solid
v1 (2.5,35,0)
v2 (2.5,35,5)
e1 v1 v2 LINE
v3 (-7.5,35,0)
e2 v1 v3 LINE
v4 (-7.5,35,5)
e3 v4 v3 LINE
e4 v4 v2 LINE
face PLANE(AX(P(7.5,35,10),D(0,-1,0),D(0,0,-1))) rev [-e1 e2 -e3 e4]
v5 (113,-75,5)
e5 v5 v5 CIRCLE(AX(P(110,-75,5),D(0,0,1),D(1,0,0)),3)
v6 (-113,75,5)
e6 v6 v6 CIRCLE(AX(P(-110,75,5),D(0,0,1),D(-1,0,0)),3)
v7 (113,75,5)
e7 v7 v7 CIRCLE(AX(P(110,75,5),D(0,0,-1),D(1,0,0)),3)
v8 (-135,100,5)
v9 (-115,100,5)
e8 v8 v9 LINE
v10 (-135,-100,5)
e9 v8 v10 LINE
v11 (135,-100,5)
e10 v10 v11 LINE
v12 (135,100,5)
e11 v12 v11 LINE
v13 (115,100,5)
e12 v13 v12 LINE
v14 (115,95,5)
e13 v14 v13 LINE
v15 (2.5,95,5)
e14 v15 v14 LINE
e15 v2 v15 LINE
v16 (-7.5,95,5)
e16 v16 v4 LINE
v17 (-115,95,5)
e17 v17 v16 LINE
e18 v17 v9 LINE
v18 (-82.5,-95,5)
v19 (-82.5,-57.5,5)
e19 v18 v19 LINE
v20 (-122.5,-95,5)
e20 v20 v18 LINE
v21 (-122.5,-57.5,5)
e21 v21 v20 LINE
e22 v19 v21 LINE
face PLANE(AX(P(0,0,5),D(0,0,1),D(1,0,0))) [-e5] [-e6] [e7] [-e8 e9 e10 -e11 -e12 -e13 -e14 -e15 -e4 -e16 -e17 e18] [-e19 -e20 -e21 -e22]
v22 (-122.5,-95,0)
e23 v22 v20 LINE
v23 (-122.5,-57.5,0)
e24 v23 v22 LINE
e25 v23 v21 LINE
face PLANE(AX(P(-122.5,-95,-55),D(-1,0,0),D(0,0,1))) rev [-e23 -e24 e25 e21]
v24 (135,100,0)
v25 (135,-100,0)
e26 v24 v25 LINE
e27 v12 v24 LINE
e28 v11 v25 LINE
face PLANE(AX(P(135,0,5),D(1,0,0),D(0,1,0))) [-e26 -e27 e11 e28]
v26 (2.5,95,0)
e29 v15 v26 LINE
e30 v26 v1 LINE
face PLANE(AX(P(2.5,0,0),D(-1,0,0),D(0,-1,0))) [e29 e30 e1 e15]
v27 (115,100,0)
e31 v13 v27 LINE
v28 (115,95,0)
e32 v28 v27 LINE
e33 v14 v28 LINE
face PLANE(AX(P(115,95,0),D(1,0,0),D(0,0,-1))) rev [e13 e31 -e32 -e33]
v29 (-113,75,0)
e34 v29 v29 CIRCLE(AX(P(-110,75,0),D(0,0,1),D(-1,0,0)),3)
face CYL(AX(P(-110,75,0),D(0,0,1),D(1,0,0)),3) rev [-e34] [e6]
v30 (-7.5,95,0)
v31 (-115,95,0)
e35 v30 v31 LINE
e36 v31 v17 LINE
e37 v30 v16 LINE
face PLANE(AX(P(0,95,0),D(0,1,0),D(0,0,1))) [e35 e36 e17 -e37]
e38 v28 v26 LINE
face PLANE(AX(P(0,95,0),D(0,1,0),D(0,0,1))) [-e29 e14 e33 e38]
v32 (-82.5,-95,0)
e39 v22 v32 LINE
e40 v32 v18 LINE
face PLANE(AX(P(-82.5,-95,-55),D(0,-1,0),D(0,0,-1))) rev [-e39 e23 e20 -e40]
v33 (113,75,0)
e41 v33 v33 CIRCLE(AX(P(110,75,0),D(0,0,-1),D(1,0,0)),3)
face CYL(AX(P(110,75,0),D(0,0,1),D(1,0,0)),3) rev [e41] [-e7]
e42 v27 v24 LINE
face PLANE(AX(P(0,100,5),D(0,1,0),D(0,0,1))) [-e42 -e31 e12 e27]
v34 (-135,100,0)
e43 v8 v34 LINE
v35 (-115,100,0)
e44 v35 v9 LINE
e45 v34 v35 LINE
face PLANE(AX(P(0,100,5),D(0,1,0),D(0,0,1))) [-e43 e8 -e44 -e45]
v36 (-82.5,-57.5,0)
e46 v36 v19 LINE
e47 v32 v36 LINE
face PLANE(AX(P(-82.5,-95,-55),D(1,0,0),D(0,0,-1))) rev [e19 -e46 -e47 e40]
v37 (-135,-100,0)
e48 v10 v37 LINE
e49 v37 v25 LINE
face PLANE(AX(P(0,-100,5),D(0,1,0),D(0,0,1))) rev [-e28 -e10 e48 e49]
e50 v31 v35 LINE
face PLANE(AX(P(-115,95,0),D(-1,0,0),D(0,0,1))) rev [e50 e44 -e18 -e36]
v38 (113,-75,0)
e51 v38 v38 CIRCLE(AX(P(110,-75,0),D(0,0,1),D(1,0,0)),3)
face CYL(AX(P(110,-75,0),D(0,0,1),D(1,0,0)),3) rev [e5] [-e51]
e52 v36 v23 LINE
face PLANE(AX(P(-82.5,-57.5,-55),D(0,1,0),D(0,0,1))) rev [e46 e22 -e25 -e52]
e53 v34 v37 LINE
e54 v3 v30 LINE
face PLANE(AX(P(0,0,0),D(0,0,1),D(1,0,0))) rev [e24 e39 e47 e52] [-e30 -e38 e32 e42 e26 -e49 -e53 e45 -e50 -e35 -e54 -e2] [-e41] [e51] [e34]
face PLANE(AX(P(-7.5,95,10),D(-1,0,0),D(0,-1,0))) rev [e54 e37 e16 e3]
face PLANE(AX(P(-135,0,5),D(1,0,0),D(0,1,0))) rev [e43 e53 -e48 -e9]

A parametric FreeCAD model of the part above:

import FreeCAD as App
import Part
import Sketcher
Q = App.Units.Quantity

doc = App.newDocument("Part")
body = doc.addObject("PartDesign::Body", "Body")

sketch1 = doc.addObject("Sketcher::SketchObject", "Sketch")
body.addObject(sketch1)
sketch1.AttachmentSupport = (doc.XY_Plane, [""])
sketch1.MapMode = "FlatFace"
sketch1.addGeometry([
    Part.LineSegment(App.Vector(135, 100, 0), App.Vector(-135, 100, 0)),
    Part.LineSegment(App.Vector(-135, 100, 0), App.Vector(-135, 22, 0)),
    Part.LineSegment(App.Vector(-135, 22, 0), App.Vector(-90, 22, 0)),
    Part.LineSegment(App.Vector(-90, 22, 0), App.Vector(-90, -22, 0)),
    Part.LineSegment(App.Vector(-90, -22, 0), App.Vector(-135, -22, 0)),
    Part.LineSegment(App.Vector(-135, -22, 0), App.Vector(-135, -100, 0)),
    Part.LineSegment(App.Vector(-135, -100, 0), App.Vector(135, -100, 0)),
    Part.LineSegment(App.Vector(135, -100, 0), App.Vector(135, 100, 0)),
], False)
sketch1.addConstraint([
    Sketcher.Constraint("Coincident", 0, 2, 1, 1),
    Sketcher.Constraint("Coincident", 1, 2, 2, 1),
    Sketcher.Constraint("Coincident", 2, 2, 3, 1),
    Sketcher.Constraint("Coincident", 3, 2, 4, 1),
    Sketcher.Constraint("Coincident", 4, 2, 5, 1),
    Sketcher.Constraint("Coincident", 5, 2, 6, 1),
    Sketcher.Constraint("Coincident", 6, 2, 7, 1),
    Sketcher.Constraint("Coincident", 7, 2, 0, 1),
    Sketcher.Constraint("Horizontal", 0),
    Sketcher.Constraint("Vertical", 1),
    Sketcher.Constraint("Horizontal", 2),
    Sketcher.Constraint("Vertical", 3),
    Sketcher.Constraint("Horizontal", 4),
    Sketcher.Constraint("Vertical", 5),
    Sketcher.Constraint("Horizontal", 6),
    Sketcher.Constraint("Vertical", 7),
    Sketcher.Constraint("Symmetric", 0, 2, 6, 2, -1, 1),
    Sketcher.Constraint("Symmetric", 1, 2, 4, 2, -1),
    Sketcher.Constraint("Equal", 4, 3),
    Sketcher.Constraint("DistanceX", 0, 2, 0, 1, Q("270 mm")),
    Sketcher.Constraint("DistanceX", 2, 1, 2, 2, Q("45 mm")),
    Sketcher.Constraint("DistanceY", 7, 1, 7, 2, Q("200 mm")),
])
pad1 = doc.addObject("PartDesign::Pad", "Pad")
body.addObject(pad1)
pad1.Profile = sketch1
pad1.Length = 5

sketch2 = doc.addObject("Sketcher::SketchObject", "Sketch001")
body.addObject(sketch2)
sketch2.AttachmentSupport = (doc.XY_Plane, [""])
sketch2.MapMode = "FlatFace"
sketch2.AttachmentOffset = App.Placement(App.Vector(0, 0, 5), App.Rotation())
sketch2.addGeometry(Part.Circle(App.Vector(110, -75, 0), App.Vector(0, 0, 1), 3), False)
sketch2.addConstraint([
    Sketcher.Constraint("Diameter", 0, Q("6 mm")),
    Sketcher.Constraint("DistanceX", -1, 1, 0, 3, Q("110 mm")),
    Sketcher.Constraint("DistanceY", 0, 3, -1, 1, Q("75 mm")),
])
pocket1 = doc.addObject("PartDesign::Pocket", "Pocket")
body.addObject(pocket1)
pocket1.Profile = sketch2
pocket1.Type = "ThroughAll"
doc.recompute()

mirrored = doc.addObject("PartDesign::Mirrored", "Mirrored")
body.addObject(mirrored)
mirrored.Originals = [pocket1]
mirrored.MirrorPlane = (doc.YZ_Plane, [""])
body.Tip = mirrored
doc.recompute()

mirrored2 = doc.addObject("PartDesign::Mirrored", "Mirrored001")
body.addObject(mirrored2)
mirrored2.Originals = [pocket1]
mirrored2.MirrorPlane = (doc.XZ_Plane, [""])
body.Tip = mirrored2

sketch3 = doc.addObject("Sketcher::SketchObject", "Sketch002")
body.addObject(sketch3)
sketch3.AttachmentSupport = (doc.XY_Plane, [""])
sketch3.MapMode = "FlatFace"
sketch3.AttachmentOffset = App.Placement(App.Vector(0, 0, 5), App.Rotation())
sketch3.addGeometry(Part.Circle(App.Vector(-110, 75, 0), App.Vector(0, 0, 1), 3), False)
sketch3.addConstraint([
    Sketcher.Constraint("Diameter", 0, Q("6 mm")),
    Sketcher.Constraint("DistanceX", 0, 3, -1, 1, Q("110 mm")),
    Sketcher.Constraint("DistanceY", -1, 1, 0, 3, Q("75 mm")),
])
pocket2 = doc.addObject("PartDesign::Pocket", "Pocket001")
body.addObject(pocket2)
pocket2.Profile = sketch3
pocket2.Type = "ThroughAll"

sketch4 = doc.addObject("Sketcher::SketchObject", "Sketch003")
body.addObject(sketch4)
sketch4.AttachmentSupport = (doc.XY_Plane, [""])
sketch4.MapMode = "FlatFace"
sketch4.AttachmentOffset = App.Placement(App.Vector(0, 0, 5), App.Rotation())
sketch4.addGeometry([
    Part.LineSegment(App.Vector(-122, -58, 0), App.Vector(-122, -95, 0)),
    Part.LineSegment(App.Vector(-122, -95, 0), App.Vector(-82, -95, 0)),
    Part.LineSegment(App.Vector(-82, -95, 0), App.Vector(-82, -58, 0)),
    Part.LineSegment(App.Vector(-82, -58, 0), App.Vector(-122, -58, 0)),
], False)
sketch4.addConstraint([
    Sketcher.Constraint("Coincident", 0, 2, 1, 1),
    Sketcher.Constraint("Coincident", 1, 2, 2, 1),
    Sketcher.Constraint("Coincident", 2, 2, 3, 1),
    Sketcher.Constraint("Coincident", 3, 2, 0, 1),
    Sketcher.Constraint("Vertical", 0),
    Sketcher.Constraint("Horizontal", 1),
    Sketcher.Constraint("Vertical", 2),
    Sketcher.Constraint("Horizontal", 3),
    Sketcher.Constraint("DistanceX", 1, 1, 1, 2, Q("40 mm")),
    Sketcher.Constraint("DistanceY", 0, 2, 0, 1, Q("37.5 mm")),
    Sketcher.Constraint("DistanceY", 0, 2, -1, 1, Q("95 mm")),
    Sketcher.Constraint("DistanceX", 0, 2, -1, 1, Q("122.5 mm")),
])
pocket3 = doc.addObject("PartDesign::Pocket", "Pocket002")
body.addObject(pocket3)
pocket3.Profile = sketch4
pocket3.Length = 60

sketch5 = doc.addObject("Sketcher::SketchObject", "Sketch004")
body.addObject(sketch5)
sketch5.AttachmentSupport = (doc.XZ_Plane, [""])
sketch5.MapMode = "FlatFace"
sketch5.AttachmentOffset = App.Placement(App.Vector(0, 0, 22.5), App.Rotation())
sketch5.addGeometry([
    Part.LineSegment(App.Vector(-135, 0, 0), App.Vector(-135, 5, 0)),
    Part.LineSegment(App.Vector(-135, 5, 0), App.Vector(-90, 5, 0)),
    Part.LineSegment(App.Vector(-90, 5, 0), App.Vector(-90, 0, 0)),
    Part.LineSegment(App.Vector(-90, 0, 0), App.Vector(-135, 0, 0)),
], False)
sketch5.addConstraint([
    Sketcher.Constraint("Coincident", 0, 2, 1, 1),
    Sketcher.Constraint("Coincident", 1, 2, 2, 1),
    Sketcher.Constraint("Coincident", 2, 2, 3, 1),
    Sketcher.Constraint("Coincident", 3, 2, 0, 1),
    Sketcher.Constraint("Vertical", 0),
    Sketcher.Constraint("Horizontal", 1),
    Sketcher.Constraint("Vertical", 2),
    Sketcher.Constraint("Horizontal", 3),
    Sketcher.Constraint("PointOnObject", 2, 2, -1),
    Sketcher.Constraint("DistanceX", 1, 1, 1, 2, Q("45 mm")),
    Sketcher.Constraint("DistanceY", 0, 1, 0, 2, Q("5 mm")),
    Sketcher.Constraint("DistanceX", 0, 2, -1, 1, Q("135 mm")),
])
pad2 = doc.addObject("PartDesign::Pad", "Pad001")
body.addObject(pad2)
pad2.Profile = sketch5
pad2.Length = 60
pad2.Reversed = True

sketch6 = doc.addObject("Sketcher::SketchObject", "Sketch005")
body.addObject(sketch6)
sketch6.AttachmentSupport = (doc.XZ_Plane, [""])
sketch6.MapMode = "FlatFace"
sketch6.AttachmentOffset = App.Placement(App.Vector(0, 0, -100), App.Rotation())
sketch6.addGeometry([
    Part.LineSegment(App.Vector(-115, 0, 0), App.Vector(-115, 5, 0)),
    Part.LineSegment(App.Vector(-115, 5, 0), App.Vector(115, 5, 0)),
    Part.LineSegment(App.Vector(115, 5, 0), App.Vector(115, 0, 0)),
    Part.LineSegment(App.Vector(115, 0, 0), App.Vector(-115, 0, 0)),
], False)
sketch6.addConstraint([
    Sketcher.Constraint("Coincident", 0, 2, 1, 1),
    Sketcher.Constraint("Coincident", 1, 2, 2, 1),
    Sketcher.Constraint("Coincident", 2, 2, 3, 1),
    Sketcher.Constraint("Coincident", 3, 2, 0, 1),
    Sketcher.Constraint("Vertical", 0),
    Sketcher.Constraint("Horizontal", 1),
    Sketcher.Constraint("Vertical", 2),
    Sketcher.Constraint("Horizontal", 3),
    Sketcher.Constraint("Symmetric", 2, 2, 3, 2, -1, 1),
    Sketcher.Constraint("DistanceX", 1, 1, 1, 2, Q("230 mm")),
    Sketcher.Constraint("DistanceY", 0, 1, 0, 2, Q("5 mm")),
])
pocket4 = doc.addObject("PartDesign::Pocket", "Pocket003")
body.addObject(pocket4)
pocket4.Profile = sketch6
pocket4.Length = 5
pocket4.Reversed = True

sketch7 = doc.addObject("Sketcher::SketchObject", "Sketch006")
body.addObject(sketch7)
sketch7.AttachmentSupport = (doc.XY_Plane, [""])
sketch7.MapMode = "FlatFace"
sketch7.addGeometry([
    Part.LineSegment(App.Vector(8, 95, 0), App.Vector(8, 35, 0)),
    Part.LineSegment(App.Vector(8, 35, 0), App.Vector(-8, 35, 0)),
    Part.LineSegment(App.Vector(-8, 35, 0), App.Vector(-8, 95, 0)),
    Part.LineSegment(App.Vector(-8, 95, 0), App.Vector(8, 95, 0)),
], False)
sketch7.addConstraint([
    Sketcher.Constraint("Coincident", 0, 2, 1, 1),
    Sketcher.Constraint("Coincident", 1, 2, 2, 1),
    Sketcher.Constraint("Coincident", 2, 2, 3, 1),
    Sketcher.Constraint("Coincident", 3, 2, 0, 1),
    Sketcher.Constraint("Vertical", 0),
    Sketcher.Constraint("Horizontal", 1),
    Sketcher.Constraint("Vertical", 2),
    Sketcher.Constraint("Horizontal", 3),
    Sketcher.Constraint("DistanceX", 1, 2, 1, 1, Q("15 mm")),
    Sketcher.Constraint("DistanceY", 0, 2, 0, 1, Q("60 mm")),
    Sketcher.Constraint("DistanceY", -1, 1, 0, 2, Q("35 mm")),
    Sketcher.Constraint("DistanceX", -1, 1, 0, 2, Q("7.5 mm")),
])
pocket5 = doc.addObject("PartDesign::Pocket", "Pocket004")
body.addObject(pocket5)
pocket5.Profile = sketch7
pocket5.Length = 10
pocket5.Reversed = True

sketch8 = doc.addObject("Sketcher::SketchObject", "Sketch007")
body.addObject(sketch8)
sketch8.AttachmentSupport = (doc.YZ_Plane, [""])
sketch8.MapMode = "FlatFace"
sketch8.AttachmentOffset = App.Placement(App.Vector(0, 0, 7.5), App.Rotation())
sketch8.addGeometry([
    Part.LineSegment(App.Vector(95, 0, 0), App.Vector(35, 0, 0)),
    Part.LineSegment(App.Vector(35, 0, 0), App.Vector(35, 5, 0)),
    Part.LineSegment(App.Vector(35, 5, 0), App.Vector(95, 5, 0)),
    Part.LineSegment(App.Vector(95, 5, 0), App.Vector(95, 0, 0)),
], False)
sketch8.addConstraint([
    Sketcher.Constraint("Coincident", 0, 2, 1, 1),
    Sketcher.Constraint("Coincident", 1, 2, 2, 1),
    Sketcher.Constraint("Coincident", 2, 2, 3, 1),
    Sketcher.Constraint("Coincident", 3, 2, 0, 1),
    Sketcher.Constraint("Horizontal", 0),
    Sketcher.Constraint("Vertical", 1),
    Sketcher.Constraint("Horizontal", 2),
    Sketcher.Constraint("Vertical", 3),
    Sketcher.Constraint("PointOnObject", 0, 2, -1),
    Sketcher.Constraint("DistanceX", 0, 2, 0, 1, Q("60 mm")),
    Sketcher.Constraint("DistanceY", 1, 1, 1, 2, Q("5 mm")),
    Sketcher.Constraint("DistanceX", -1, 1, 0, 2, Q("35 mm")),
])
pad3 = doc.addObject("PartDesign::Pad", "Pad002")
body.addObject(pad3)
pad3.Profile = sketch8
pad3.Length = 5
pad3.Reversed = True

doc.recompute()
